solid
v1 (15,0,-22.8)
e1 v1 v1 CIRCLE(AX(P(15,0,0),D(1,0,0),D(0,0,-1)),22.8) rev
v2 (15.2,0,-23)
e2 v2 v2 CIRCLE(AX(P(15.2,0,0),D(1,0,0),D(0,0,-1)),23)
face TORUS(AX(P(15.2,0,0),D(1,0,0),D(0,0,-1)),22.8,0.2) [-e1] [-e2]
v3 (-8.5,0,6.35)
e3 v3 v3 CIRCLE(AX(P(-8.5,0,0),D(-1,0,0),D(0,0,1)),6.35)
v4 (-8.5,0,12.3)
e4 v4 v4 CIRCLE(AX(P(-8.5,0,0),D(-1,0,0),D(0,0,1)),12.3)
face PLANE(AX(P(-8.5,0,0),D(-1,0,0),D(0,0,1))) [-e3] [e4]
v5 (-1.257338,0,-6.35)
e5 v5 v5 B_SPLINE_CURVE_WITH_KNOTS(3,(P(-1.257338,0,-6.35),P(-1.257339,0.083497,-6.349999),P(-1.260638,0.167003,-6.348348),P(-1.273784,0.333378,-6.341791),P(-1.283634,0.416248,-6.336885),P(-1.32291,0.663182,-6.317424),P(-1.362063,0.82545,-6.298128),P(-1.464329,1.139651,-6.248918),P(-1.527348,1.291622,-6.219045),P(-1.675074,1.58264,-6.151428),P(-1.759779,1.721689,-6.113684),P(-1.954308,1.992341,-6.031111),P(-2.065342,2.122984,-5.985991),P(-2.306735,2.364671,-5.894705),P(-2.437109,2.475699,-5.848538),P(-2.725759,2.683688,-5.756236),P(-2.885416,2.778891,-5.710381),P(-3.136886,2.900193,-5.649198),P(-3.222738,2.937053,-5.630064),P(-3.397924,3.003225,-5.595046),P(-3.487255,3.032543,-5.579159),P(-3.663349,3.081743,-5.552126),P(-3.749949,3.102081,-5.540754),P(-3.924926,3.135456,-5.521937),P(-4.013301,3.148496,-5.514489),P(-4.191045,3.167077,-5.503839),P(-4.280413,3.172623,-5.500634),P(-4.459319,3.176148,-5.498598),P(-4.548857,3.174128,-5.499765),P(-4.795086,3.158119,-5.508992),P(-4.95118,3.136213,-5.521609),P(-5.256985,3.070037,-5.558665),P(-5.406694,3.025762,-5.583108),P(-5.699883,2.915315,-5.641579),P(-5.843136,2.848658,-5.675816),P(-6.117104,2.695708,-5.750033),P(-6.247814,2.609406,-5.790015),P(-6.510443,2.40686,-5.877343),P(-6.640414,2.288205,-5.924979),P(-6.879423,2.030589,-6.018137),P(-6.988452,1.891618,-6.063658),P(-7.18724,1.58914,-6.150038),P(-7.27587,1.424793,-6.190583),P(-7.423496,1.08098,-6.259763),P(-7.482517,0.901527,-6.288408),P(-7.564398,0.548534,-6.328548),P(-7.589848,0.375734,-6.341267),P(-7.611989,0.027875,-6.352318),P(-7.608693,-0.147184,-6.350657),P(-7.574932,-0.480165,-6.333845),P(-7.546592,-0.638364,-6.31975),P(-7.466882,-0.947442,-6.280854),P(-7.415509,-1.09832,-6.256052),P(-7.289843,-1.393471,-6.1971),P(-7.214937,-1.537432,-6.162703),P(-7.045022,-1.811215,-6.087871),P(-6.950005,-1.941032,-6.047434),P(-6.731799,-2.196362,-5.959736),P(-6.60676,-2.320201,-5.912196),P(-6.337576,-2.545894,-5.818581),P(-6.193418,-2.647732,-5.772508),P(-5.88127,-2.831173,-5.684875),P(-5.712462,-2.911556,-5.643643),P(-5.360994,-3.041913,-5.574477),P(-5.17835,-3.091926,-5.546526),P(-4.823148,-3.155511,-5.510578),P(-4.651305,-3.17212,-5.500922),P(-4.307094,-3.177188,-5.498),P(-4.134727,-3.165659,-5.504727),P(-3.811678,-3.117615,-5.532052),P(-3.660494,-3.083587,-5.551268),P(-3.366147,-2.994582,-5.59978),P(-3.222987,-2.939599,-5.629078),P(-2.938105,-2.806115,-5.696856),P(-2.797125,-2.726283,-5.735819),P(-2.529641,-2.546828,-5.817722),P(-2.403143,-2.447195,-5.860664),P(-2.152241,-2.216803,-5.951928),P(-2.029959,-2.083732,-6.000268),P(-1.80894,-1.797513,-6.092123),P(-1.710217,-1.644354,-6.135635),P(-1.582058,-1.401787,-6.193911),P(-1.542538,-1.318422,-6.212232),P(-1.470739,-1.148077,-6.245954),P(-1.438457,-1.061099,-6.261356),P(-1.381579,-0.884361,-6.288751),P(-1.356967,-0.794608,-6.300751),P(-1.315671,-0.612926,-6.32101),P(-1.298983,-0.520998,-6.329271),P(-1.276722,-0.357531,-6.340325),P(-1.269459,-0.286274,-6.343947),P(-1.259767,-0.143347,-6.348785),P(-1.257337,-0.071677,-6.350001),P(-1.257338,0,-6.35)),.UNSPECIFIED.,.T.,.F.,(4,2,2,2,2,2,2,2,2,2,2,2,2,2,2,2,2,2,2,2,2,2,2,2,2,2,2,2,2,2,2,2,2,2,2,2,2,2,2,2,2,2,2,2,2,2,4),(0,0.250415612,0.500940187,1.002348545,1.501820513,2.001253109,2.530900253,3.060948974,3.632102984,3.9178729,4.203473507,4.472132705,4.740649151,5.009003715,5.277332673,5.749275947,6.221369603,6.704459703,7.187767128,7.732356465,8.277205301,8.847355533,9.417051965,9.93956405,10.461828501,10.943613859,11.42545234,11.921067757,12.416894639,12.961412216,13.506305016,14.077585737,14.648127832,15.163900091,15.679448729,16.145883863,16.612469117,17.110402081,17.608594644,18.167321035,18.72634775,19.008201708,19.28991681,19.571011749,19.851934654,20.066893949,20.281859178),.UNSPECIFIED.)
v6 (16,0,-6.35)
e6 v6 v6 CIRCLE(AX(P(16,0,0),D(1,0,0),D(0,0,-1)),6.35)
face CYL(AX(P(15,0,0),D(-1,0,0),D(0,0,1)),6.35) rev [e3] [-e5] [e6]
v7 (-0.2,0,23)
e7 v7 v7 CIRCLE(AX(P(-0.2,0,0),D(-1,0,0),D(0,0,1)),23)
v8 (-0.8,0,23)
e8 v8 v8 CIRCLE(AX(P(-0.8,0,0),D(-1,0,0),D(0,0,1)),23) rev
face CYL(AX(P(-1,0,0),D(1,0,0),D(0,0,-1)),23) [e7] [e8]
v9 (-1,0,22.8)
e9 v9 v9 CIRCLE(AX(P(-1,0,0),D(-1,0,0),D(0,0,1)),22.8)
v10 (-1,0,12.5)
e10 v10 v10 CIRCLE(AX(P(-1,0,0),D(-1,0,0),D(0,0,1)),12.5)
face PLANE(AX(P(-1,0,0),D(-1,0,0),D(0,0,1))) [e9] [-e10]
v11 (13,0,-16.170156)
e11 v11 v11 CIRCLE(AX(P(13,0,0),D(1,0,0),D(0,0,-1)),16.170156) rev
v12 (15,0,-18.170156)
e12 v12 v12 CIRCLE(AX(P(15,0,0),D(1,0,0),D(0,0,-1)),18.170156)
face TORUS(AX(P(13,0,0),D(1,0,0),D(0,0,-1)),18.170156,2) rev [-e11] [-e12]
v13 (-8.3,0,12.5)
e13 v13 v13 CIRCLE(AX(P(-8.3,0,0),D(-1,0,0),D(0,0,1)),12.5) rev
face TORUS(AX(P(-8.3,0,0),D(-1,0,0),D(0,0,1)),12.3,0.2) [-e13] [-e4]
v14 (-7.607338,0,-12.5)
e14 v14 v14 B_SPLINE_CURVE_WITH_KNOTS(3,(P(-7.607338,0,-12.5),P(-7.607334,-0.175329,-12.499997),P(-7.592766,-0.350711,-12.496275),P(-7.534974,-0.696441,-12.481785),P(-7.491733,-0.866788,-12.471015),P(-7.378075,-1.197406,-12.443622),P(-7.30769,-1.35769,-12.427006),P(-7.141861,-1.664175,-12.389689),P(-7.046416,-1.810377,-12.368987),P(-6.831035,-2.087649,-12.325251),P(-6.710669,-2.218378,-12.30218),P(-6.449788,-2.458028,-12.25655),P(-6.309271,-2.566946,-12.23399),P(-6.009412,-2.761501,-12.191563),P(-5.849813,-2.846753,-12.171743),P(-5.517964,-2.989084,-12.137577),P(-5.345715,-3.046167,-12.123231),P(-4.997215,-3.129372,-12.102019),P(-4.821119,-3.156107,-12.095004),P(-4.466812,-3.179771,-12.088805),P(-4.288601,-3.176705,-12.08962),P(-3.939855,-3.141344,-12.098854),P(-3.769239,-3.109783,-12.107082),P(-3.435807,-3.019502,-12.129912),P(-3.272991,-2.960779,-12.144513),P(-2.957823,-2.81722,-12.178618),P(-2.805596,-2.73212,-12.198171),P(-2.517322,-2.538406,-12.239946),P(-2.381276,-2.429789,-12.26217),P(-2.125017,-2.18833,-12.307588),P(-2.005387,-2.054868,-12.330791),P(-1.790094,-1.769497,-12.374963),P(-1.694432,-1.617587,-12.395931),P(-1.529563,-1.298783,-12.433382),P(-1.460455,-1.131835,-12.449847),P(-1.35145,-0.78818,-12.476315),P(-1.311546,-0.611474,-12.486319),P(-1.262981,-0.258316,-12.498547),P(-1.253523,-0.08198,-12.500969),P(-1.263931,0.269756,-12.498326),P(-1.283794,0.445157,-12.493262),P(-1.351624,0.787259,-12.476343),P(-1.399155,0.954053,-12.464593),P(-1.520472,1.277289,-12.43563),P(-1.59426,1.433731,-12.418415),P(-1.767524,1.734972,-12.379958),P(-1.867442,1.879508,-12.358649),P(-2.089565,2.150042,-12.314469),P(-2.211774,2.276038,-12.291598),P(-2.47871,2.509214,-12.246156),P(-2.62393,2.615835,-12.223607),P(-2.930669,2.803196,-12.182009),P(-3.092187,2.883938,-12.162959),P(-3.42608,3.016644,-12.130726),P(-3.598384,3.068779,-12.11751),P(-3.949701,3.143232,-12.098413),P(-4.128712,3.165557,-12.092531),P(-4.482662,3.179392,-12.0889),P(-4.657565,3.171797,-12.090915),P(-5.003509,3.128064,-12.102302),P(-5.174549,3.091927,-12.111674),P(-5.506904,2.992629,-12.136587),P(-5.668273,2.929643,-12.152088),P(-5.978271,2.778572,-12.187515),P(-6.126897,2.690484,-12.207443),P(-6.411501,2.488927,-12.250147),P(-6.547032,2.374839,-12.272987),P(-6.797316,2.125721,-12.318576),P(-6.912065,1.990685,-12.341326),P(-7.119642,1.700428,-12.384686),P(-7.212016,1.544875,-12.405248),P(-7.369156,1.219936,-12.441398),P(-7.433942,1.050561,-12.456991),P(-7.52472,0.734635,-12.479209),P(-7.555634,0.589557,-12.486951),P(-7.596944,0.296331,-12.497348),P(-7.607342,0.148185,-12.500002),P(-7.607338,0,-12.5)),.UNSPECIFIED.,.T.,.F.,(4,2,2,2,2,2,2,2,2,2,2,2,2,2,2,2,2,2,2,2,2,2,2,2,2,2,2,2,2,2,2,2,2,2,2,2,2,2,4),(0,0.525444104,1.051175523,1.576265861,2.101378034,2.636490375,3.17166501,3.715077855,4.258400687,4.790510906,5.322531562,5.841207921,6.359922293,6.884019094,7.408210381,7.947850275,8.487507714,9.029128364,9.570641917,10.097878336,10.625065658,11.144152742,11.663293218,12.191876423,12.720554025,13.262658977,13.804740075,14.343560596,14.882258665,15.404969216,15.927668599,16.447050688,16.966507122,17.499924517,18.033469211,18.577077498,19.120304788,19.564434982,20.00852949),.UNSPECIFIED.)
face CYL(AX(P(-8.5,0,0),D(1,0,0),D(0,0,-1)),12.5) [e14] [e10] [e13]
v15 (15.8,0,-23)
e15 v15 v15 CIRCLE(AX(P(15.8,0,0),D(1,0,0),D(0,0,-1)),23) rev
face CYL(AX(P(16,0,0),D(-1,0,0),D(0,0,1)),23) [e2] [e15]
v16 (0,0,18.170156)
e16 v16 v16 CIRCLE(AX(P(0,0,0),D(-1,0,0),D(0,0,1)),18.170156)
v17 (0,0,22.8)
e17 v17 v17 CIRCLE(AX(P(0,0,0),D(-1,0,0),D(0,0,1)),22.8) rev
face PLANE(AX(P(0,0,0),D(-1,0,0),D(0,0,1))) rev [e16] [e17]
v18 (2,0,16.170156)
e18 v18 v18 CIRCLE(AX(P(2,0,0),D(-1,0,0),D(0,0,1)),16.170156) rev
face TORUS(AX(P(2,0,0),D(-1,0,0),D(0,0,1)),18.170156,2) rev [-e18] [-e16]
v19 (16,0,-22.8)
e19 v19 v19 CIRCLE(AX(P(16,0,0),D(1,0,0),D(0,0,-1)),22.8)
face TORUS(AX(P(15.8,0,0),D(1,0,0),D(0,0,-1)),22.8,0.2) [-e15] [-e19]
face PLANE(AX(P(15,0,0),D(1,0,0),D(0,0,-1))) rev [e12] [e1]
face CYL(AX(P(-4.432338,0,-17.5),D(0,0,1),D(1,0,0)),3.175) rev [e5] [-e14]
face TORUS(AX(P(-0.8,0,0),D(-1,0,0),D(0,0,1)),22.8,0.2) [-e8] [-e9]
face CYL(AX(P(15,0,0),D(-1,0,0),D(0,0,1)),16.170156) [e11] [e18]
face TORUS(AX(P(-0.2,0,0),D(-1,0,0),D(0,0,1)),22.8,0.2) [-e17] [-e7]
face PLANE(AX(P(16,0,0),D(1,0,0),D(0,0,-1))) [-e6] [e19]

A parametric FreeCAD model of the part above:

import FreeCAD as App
import Part
import Sketcher

V = App.Vector


def edges_at(feature, points):
    """Names of the edges that pass closest to the given points."""
    edges = feature.Shape.Edges
    near = lambda p: min(range(len(edges)), key=lambda i: edges[i].distToShape(Part.Vertex(*p))[0])
    return sorted({f"Edge{near(p) + 1}" for p in points})

doc = App.newDocument("Part")
body = doc.addObject("PartDesign::Body", "Body")

sketch1 = doc.addObject("Sketcher::SketchObject", "Sketch")
body.addObject(sketch1)
sketch1.AttachmentSupport = (doc.YZ_Plane, [""])
sketch1.MapMode = "FlatFace"
sketch1.addGeometry(Part.Circle(V(0, 0, 0), V(0, 0, 1), 16), False)
sketch1.addGeometry(Part.Circle(V(0, 0, 0), V(0, 0, 1), 6), False)
sketch1.addConstraint(Sketcher.Constraint("Coincident", 0, 3, -1, 1))
sketch1.addConstraint(Sketcher.Constraint("Coincident", 1, 3, -1, 1))
sketch1.addConstraint(Sketcher.Constraint("Diameter", 1, 12.7))
sketch1.addConstraint(Sketcher.Constraint("Diameter", 0, 32.340312))
pad1 = doc.addObject("PartDesign::Pad", "Pad")
body.addObject(pad1)
pad1.Profile = sketch1
pad1.Length = 15

sketch2 = doc.addObject("Sketcher::SketchObject", "Sketch001")
body.addObject(sketch2)
sketch2.AttachmentSupport = (doc.YZ_Plane, [""])
sketch2.MapMode = "FlatFace"
sketch2.AttachmentOffset = App.Placement(V(0, 0, 15), App.Rotation())
sketch2.addGeometry(Part.Circle(V(0, 0, 0), V(0, 0, 1), 23), False)
sketch2.addGeometry(Part.Circle(V(0, 0, 0), V(0, 0, 1), 6), False)
sketch2.addConstraint(Sketcher.Constraint("Coincident", 0, 3, -1, 1))
sketch2.addConstraint(Sketcher.Constraint("Coincident", 1, 3, -1, 1))
sketch2.addConstraint(Sketcher.Constraint("Diameter", 0, 46.0))
sketch2.addConstraint(Sketcher.Constraint("Diameter", 1, 12.7))
pad2 = doc.addObject("PartDesign::Pad", "Pad001")
body.addObject(pad2)
pad2.Profile = sketch2
pad2.Length = 1

sketch3 = doc.addObject("Sketcher::SketchObject", "Sketch002")
body.addObject(sketch3)
sketch3.AttachmentSupport = (doc.YZ_Plane, [""])
sketch3.MapMode = "FlatFace"
sketch3.addGeometry(Part.Circle(V(0, 0, 0), V(0, 0, 1), 23), False)
sketch3.addGeometry(Part.Circle(V(0, 0, 0), V(0, 0, 1), 6), False)
sketch3.addConstraint(Sketcher.Constraint("Coincident", 0, 3, -1, 1))
sketch3.addConstraint(Sketcher.Constraint("Coincident", 1, 3, -1, 1))
sketch3.addConstraint(Sketcher.Constraint("Diameter", 0, 46.0))
sketch3.addConstraint(Sketcher.Constraint("Diameter", 1, 12.7))
pad3 = doc.addObject("PartDesign::Pad", "Pad002")
body.addObject(pad3)
pad3.Profile = sketch3
pad3.Length = 1
pad3.Reversed = True
doc.recompute()

fillet = doc.addObject("PartDesign::Fillet", "Fillet")
body.addObject(fillet)
fillet.Base = (pad3, edges_at(pad3, [(0, 0, 16.17), (15, 0, 16.17)]))
fillet.Radius = 2
doc.recompute()

fillet2 = doc.addObject("PartDesign::Fillet", "Fillet001")
body.addObject(fillet2)
fillet2.Base = (fillet, edges_at(fillet, [
    (15, 0, 23),
    (-1, 0, -23),
    (0, 0, -23),
    (16, 0, 23),
]))
fillet2.Radius = 0.2

sketch4 = doc.addObject("Sketcher::SketchObject", "Sketch003")
body.addObject(sketch4)
sketch4.AttachmentSupport = (doc.YZ_Plane, [""])
sketch4.MapMode = "FlatFace"
sketch4.AttachmentOffset = App.Placement(V(0, 0, -1), App.Rotation())
sketch4.addGeometry(Part.Circle(V(0, 0, 0), V(0, 0, 1), 12), False)
sketch4.addGeometry(Part.Circle(V(0, 0, 0), V(0, 0, 1), 6), False)
sketch4.addConstraint(Sketcher.Constraint("Coincident", 0, 3, -1, 1))
sketch4.addConstraint(Sketcher.Constraint("Coincident", 1, 3, -1, 1))
sketch4.addConstraint(Sketcher.Constraint("Diameter", 0, 25.0))
sketch4.addConstraint(Sketcher.Constraint("Diameter", 1, 12.7))
pad4 = doc.addObject("PartDesign::Pad", "Pad003")
body.addObject(pad4)
pad4.Profile = sketch4
pad4.Length = 7.5
pad4.Reversed = True

sketch5 = doc.addObject("Sketcher::SketchObject", "Sketch004")
body.addObject(sketch5)
sketch5.AttachmentSupport = (doc.XY_Plane, [""])
sketch5.MapMode = "FlatFace"
sketch5.addGeometry(Part.Circle(V(-4.4, 0, 0), V(0, 0, 1), 3.2), False)
sketch5.addConstraint(Sketcher.Constraint("PointOnObject", 0, 3, -1))
sketch5.addConstraint(Sketcher.Constraint("Diameter", 0, 6.35))
sketch5.addConstraint(Sketcher.Constraint("DistanceX", 0, 3, -1, 1, 4.432338))
pocket1 = doc.addObject("PartDesign::Pocket", "Pocket")
body.addObject(pocket1)
pocket1.Profile = sketch5
pocket1.Length = 17.5
doc.recompute()

fillet3 = doc.addObject("PartDesign::Fillet", "Fillet002")
body.addObject(fillet3)
fillet3.Base = (pocket1, edges_at(pocket1, [(-8.5, 0, -12.5)]))
fillet3.Radius = 0.2

doc.recompute()
